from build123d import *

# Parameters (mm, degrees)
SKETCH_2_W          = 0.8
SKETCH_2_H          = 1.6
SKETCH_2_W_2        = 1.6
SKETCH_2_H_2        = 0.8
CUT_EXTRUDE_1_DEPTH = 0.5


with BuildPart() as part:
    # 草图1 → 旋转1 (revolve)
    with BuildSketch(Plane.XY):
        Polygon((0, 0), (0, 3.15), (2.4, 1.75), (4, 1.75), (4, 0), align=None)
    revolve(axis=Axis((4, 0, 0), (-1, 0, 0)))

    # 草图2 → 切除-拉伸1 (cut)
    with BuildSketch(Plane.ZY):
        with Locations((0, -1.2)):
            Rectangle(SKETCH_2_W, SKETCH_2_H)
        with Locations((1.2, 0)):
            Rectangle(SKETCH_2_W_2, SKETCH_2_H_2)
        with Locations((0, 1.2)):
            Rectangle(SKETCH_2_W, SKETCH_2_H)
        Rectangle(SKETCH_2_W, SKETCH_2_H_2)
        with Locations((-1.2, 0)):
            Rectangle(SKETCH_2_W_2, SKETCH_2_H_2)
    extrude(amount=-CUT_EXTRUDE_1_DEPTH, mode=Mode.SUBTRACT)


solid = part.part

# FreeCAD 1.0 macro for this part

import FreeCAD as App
import Part
import Sketcher


def add_polygon(sketch, points):
    """Adds a closed chain of lines whose ends are joined by coincident constraints."""
    first, n = sketch.GeometryCount, len(points)
    for a, b in zip(points, points[1:] + points[:1]):
        sketch.addGeometry(Part.LineSegment(App.Vector(*a, 0), App.Vector(*b, 0)), False)
    for i in range(n):
        sketch.addConstraint(Sketcher.Constraint("Coincident", first + i, 2, first + (i + 1) % n, 1))

doc = App.newDocument("Part")
body = doc.addObject("PartDesign::Body", "Body")

sketch1 = body.newObject("Sketcher::SketchObject", "Sketch")
sketch1.AttachmentSupport = (doc.getObject("XY_Plane"), [""])
sketch1.MapMode = "FlatFace"
add_polygon(sketch1, [(0, 3.15), (0, 0), (4, 0), (4, 1.75), (2.4, 1.75)])
sketch1.addConstraint(Sketcher.Constraint("Vertical", 0))
sketch1.addConstraint(Sketcher.Constraint("Horizontal", 1))
sketch1.addConstraint(Sketcher.Constraint("Vertical", 2))
sketch1.addConstraint(Sketcher.Constraint("Horizontal", 3))
sketch1.addConstraint(Sketcher.Constraint("Coincident", 0, 2, -1, 1))
sketch1.addConstraint(Sketcher.Constraint("DistanceX", 1, 1, 1, 2, 4.0))
sketch1.addConstraint(Sketcher.Constraint("DistanceX", 3, 2, 3, 1, 1.6))
sketch1.addConstraint(Sketcher.Constraint("DistanceY", 0, 2, 0, 1, 3.15))
sketch1.addConstraint(Sketcher.Constraint("DistanceY", 2, 1, 2, 2, 1.75))
revolution = body.newObject("PartDesign::Revolution", "Revolution")
revolution.Profile = sketch1
revolution.ReferenceAxis = (sketch1, ["H_Axis"])
revolution.Angle = 360

sketch2 = body.newObject("Sketcher::SketchObject", "Sketch001")
sketch2.AttachmentSupport = (doc.getObject("YZ_Plane"), [""])
sketch2.MapMode = "FlatFace"
add_polygon(sketch2, [(-2, -0.4), (-2, 0.4), (-0.4, 0.4), (-0.4, 2), (0.4, 2), (0.4, 0.4), (2, 0.4), (2, -0.4), (0.4, -0.4), (0.4, -2), (-0.4, -2), (-0.4, -0.4)])
sketch2.addConstraint(Sketcher.Constraint("Vertical", 0))
sketch2.addConstraint(Sketcher.Constraint("Horizontal", 1))
sketch2.addConstraint(Sketcher.Constraint("Vertical", 2))
sketch2.addConstraint(Sketcher.Constraint("Horizontal", 3))
sketch2.addConstraint(Sketcher.Constraint("Vertical", 4))
sketch2.addConstraint(Sketcher.Constraint("Horizontal", 5))
sketch2.addConstraint(Sketcher.Constraint("Vertical", 6))
sketch2.addConstraint(Sketcher.Constraint("Horizontal", 7))
sketch2.addConstraint(Sketcher.Constraint("Vertical", 8))
sketch2.addConstraint(Sketcher.Constraint("Horizontal", 9))
sketch2.addConstraint(Sketcher.Constraint("Vertical", 10))
sketch2.addConstraint(Sketcher.Constraint("Horizontal", 11))
sketch2.addConstraint(Sketcher.Constraint("Symmetric", 0, 2, 6, 2, -1, 1))
sketch2.addConstraint(Sketcher.Constraint("Symmetric", 2, 2, 8, 2, -1, 1))
sketch2.addConstraint(Sketcher.Constraint("Symmetric", 4, 2, 10, 2, -1, 1))
sketch2.addConstraint(Sketcher.Constraint("Symmetric", 1, 2, 4, 2, -2))
sketch2.addConstraint(Sketcher.Constraint("Equal", 9, 0))
sketch2.addConstraint(Sketcher.Constraint("Equal", 11, 2))
sketch2.addConstraint(Sketcher.Constraint("DistanceX", 1, 1, 1, 2, 1.6))
sketch2.addConstraint(Sketcher.Constraint("DistanceX", 3, 1, 3, 2, 0.8))
pocket1 = body.newObject("PartDesign::Pocket", "Pocket")
pocket1.Profile = sketch2
pocket1.Length = 0.5
pocket1.Reversed = True

doc.recompute()
